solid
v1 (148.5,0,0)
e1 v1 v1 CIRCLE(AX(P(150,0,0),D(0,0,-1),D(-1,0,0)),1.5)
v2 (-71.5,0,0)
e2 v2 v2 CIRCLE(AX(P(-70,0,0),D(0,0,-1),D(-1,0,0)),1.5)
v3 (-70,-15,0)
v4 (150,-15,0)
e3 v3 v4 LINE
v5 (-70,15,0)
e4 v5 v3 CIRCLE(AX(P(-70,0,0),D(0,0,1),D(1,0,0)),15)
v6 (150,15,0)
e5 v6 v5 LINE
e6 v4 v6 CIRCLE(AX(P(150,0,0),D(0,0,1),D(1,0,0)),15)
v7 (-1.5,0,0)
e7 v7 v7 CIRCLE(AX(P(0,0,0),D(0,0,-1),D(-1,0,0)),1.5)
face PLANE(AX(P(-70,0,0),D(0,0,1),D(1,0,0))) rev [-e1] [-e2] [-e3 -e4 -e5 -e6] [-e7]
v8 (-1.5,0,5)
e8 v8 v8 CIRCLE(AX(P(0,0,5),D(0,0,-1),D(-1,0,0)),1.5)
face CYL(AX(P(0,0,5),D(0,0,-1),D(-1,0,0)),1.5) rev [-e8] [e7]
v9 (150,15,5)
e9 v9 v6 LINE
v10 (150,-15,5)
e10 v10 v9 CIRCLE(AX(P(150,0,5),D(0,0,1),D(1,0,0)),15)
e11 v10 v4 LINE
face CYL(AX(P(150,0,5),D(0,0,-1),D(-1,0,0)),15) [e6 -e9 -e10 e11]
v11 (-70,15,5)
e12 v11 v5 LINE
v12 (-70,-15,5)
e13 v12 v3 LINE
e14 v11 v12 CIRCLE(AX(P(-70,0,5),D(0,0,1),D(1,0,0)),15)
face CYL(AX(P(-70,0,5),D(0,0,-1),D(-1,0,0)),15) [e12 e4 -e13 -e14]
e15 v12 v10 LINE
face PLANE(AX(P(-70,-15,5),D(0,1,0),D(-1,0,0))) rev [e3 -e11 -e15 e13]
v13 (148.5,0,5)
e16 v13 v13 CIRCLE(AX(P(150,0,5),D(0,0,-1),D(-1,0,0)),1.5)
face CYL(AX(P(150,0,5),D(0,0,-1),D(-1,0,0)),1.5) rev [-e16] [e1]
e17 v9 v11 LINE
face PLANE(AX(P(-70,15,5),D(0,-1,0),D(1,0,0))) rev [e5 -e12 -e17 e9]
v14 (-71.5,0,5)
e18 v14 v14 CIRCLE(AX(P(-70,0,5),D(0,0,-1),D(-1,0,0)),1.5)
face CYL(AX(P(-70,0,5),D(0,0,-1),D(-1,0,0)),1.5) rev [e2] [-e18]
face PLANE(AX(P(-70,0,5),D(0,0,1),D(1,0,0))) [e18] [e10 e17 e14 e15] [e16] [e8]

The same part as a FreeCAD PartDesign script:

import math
import FreeCAD as App
import Part
import Sketcher
Q = App.Units.Quantity

doc = App.newDocument("Part")
body = doc.addObject("PartDesign::Body", "Body")

# Sketch on XY plane
sketch1 = body.newObject("Sketcher::SketchObject", "Sketch")
sketch1.AttachmentSupport = (doc.getObject("XY_Plane"), [""])
sketch1.MapMode = "FlatFace"
sketch1.addGeometry([
    Part.LineSegment(App.Vector(150, 15, 0), App.Vector(-70, 15, 0)),
    Part.ArcOfCircle(Part.Circle(App.Vector(-70, 0, 0), App.Vector(0, 0, 1), 15), math.radians(90), math.radians(270)),
    Part.LineSegment(App.Vector(-70, -15, 0), App.Vector(150, -15, 0)),
    Part.ArcOfCircle(Part.Circle(App.Vector(150, 0, 0), App.Vector(0, 0, 1), 15), math.radians(-90), math.radians(90)),
], False)
sketch1.addConstraint([
    Sketcher.Constraint("Tangent", 0, 2, 1, 1),
    Sketcher.Constraint("Tangent", 1, 2, 2, 1),
    Sketcher.Constraint("Tangent", 2, 2, 3, 1),
    Sketcher.Constraint("Tangent", 3, 2, 0, 1),
    Sketcher.Constraint("Horizontal", 0),
    Sketcher.Constraint("Horizontal", 2),
    Sketcher.Constraint("PointOnObject", 1, 3, -1),
    Sketcher.Constraint("Radius", 1, Q("15 mm")),
    Sketcher.Constraint("DistanceX", 0, 2, 0, 1, Q("220 mm")),
    Sketcher.Constraint("DistanceX", 1, 3, -1, 1, Q("70 mm")),
])
pad1 = body.newObject("PartDesign::Pad", "Pad")
pad1.Profile = sketch1
pad1.Length = 5

# Sketch on XY plane
sketch2 = body.newObject("Sketcher::SketchObject", "Sketch001")
sketch2.AttachmentSupport = (doc.getObject("XY_Plane"), [""])
sketch2.MapMode = "FlatFace"
sketch2.addGeometry([
    Part.Circle(App.Vector(150, 0, 0), App.Vector(0, 0, 1), 1.5),
    Part.Circle(App.Vector(0, 0, 0), App.Vector(0, 0, 1), 1.5),
    Part.Circle(App.Vector(-70, 0, 0), App.Vector(0, 0, 1), 1.5),
], False)
sketch2.addConstraint([
    Sketcher.Constraint("Coincident", 1, 3, -1, 1),
    Sketcher.Constraint("Equal", 0, 1),
    Sketcher.Constraint("Equal", 1, 2),
    Sketcher.Constraint("PointOnObject", 0, 3, -1),
    Sketcher.Constraint("PointOnObject", 2, 3, -1),
    Sketcher.Constraint("Diameter", 0, Q("3 mm")),
    Sketcher.Constraint("DistanceX", -1, 1, 0, 3, Q("150 mm")),
    Sketcher.Constraint("DistanceX", 2, 3, -1, 1, Q("70 mm")),
])
pocket1 = body.newObject("PartDesign::Pocket", "Pocket")
pocket1.Profile = sketch2
pocket1.Length = 5
pocket1.Reversed = True

doc.recompute()
